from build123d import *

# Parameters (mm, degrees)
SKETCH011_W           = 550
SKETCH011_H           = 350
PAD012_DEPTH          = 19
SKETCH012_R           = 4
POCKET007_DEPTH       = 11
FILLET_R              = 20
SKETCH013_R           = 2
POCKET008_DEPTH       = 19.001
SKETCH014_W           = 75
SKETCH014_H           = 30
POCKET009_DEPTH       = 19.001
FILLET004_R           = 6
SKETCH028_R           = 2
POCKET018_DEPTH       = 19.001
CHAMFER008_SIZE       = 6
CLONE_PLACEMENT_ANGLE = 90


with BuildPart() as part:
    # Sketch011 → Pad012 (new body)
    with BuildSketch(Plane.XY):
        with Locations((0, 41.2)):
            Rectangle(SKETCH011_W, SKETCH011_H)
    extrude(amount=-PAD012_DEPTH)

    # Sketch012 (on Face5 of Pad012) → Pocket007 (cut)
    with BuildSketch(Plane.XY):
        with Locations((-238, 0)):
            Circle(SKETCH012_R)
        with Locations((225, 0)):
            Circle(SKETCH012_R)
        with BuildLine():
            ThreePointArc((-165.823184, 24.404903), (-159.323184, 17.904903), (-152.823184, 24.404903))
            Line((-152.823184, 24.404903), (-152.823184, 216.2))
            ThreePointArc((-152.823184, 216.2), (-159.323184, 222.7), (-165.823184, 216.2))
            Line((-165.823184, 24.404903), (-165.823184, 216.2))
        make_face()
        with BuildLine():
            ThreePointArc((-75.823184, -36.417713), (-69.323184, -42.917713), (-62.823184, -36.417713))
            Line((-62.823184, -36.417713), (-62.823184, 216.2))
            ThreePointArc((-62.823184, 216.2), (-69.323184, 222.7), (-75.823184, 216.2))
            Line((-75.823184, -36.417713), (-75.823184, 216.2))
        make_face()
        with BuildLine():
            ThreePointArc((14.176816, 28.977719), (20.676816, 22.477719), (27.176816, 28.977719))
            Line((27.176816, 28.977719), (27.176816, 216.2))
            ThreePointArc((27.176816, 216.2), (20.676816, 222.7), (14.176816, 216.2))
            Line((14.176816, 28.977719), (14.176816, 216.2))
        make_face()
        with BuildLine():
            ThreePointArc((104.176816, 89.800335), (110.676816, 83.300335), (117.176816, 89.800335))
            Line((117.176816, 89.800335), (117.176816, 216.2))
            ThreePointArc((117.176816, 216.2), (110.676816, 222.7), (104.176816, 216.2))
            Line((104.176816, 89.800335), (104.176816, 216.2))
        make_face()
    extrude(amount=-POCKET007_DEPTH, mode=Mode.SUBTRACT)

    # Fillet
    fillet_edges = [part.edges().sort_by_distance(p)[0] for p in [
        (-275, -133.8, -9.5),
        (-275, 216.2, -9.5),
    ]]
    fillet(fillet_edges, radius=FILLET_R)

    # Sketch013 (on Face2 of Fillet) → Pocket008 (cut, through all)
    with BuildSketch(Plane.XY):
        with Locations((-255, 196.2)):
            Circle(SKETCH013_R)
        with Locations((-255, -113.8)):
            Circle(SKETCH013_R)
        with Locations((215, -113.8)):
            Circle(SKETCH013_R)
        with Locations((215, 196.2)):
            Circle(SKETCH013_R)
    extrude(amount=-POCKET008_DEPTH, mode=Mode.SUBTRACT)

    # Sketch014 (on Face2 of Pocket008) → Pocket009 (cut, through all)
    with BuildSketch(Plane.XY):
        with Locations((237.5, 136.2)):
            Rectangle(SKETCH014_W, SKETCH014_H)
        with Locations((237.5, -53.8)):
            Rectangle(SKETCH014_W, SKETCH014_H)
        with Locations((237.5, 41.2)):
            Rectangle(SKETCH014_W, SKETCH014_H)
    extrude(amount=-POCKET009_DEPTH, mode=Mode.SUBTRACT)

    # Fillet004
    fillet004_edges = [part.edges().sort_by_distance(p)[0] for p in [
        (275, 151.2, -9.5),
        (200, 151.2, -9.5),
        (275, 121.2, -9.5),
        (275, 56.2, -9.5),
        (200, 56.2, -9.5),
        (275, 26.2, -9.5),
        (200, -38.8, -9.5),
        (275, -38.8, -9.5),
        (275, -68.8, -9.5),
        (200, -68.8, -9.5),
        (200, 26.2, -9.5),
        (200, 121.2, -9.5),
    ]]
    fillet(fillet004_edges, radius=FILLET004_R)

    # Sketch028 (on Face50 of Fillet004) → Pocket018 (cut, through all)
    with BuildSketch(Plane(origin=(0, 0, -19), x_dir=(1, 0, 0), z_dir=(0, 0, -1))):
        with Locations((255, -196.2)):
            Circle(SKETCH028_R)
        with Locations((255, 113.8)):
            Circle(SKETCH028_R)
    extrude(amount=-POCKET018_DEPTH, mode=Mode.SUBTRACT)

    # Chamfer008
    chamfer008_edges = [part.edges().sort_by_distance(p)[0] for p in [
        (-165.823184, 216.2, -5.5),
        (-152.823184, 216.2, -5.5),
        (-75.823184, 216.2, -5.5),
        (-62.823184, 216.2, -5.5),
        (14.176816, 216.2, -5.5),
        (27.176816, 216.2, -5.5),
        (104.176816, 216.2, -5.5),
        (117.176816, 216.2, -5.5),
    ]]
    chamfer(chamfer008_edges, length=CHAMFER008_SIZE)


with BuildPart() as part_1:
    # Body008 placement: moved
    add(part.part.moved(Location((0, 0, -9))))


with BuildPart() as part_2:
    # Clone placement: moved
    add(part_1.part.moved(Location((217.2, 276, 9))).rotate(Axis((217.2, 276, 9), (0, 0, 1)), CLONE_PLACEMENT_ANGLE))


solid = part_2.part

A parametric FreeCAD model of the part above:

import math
import FreeCAD as App
import Part
import Sketcher

V = App.Vector


def edges_at(feature, points):
    """Names of the edges that pass closest to the given points."""
    edges = feature.Shape.Edges
    near = lambda p: min(range(len(edges)), key=lambda i: edges[i].distToShape(Part.Vertex(*p))[0])
    return sorted({f"Edge{near(p) + 1}" for p in points})


def add_polygon(sketch, points):
    """Adds a closed chain of lines whose ends are joined by coincident constraints."""
    first, n = sketch.GeometryCount, len(points)
    for a, b in zip(points, points[1:] + points[:1]):
        sketch.addGeometry(Part.LineSegment(App.Vector(*a, 0), App.Vector(*b, 0)), False)
    for i in range(n):
        sketch.addConstraint(Sketcher.Constraint("Coincident", first + i, 2, first + (i + 1) % n, 1))

doc = App.newDocument("Part")
body = doc.addObject("PartDesign::Body", "Body")

# Sketch on XY plane
sketch1 = body.newObject("Sketcher::SketchObject", "Sketch")
sketch1.AttachmentSupport = (doc.getObject("XY_Plane"), [""])
sketch1.MapMode = "FlatFace"
add_polygon(sketch1, [(-275, 216), (-275, -134), (275, -134), (275, 216)])  # lines 0-3
sketch1.addConstraint([
    Sketcher.Constraint("Vertical", 0),
    Sketcher.Constraint("Horizontal", 1),
    Sketcher.Constraint("Vertical", 2),
    Sketcher.Constraint("Horizontal", 3),
    Sketcher.Constraint("DistanceX", 1, 1, 1, 2, 550.0),
    Sketcher.Constraint("DistanceY", 0, 2, 0, 1, 350.0),
    Sketcher.Constraint("DistanceX", 0, 2, -1, 1, 275.0),
    Sketcher.Constraint("DistanceY", 0, 2, -1, 1, 133.8),
])
pad1 = body.newObject("PartDesign::Pad", "Pad")
pad1.Profile = sketch1
pad1.Length = 19
pad1.Reversed = True

# Sketch on XY plane
sketch2 = body.newObject("Sketcher::SketchObject", "Sketch001")
sketch2.AttachmentSupport = (doc.getObject("XY_Plane"), [""])
sketch2.MapMode = "FlatFace"
sketch2.addGeometry([
    Part.Circle(V(-238, 0, 0), V(0, 0, 1), 4),  # 0
    Part.Circle(V(225, 0, 0), V(0, 0, 1), 4),  # 1
    Part.ArcOfCircle(Part.Circle(V(-159.3, 24.4, 0), V(0, 0, 1), 6.5), math.radians(180), math.radians(360)),  # 2
    Part.LineSegment(V(-152.8, 24.4, 0), V(-152.8, 216.2, 0)),  # 3
    Part.ArcOfCircle(Part.Circle(V(-159.3, 216.2, 0), V(0, 0, 1), 6.5), math.radians(0), math.radians(180)),  # 4
    Part.LineSegment(V(-165.8, 216.2, 0), V(-165.8, 24.4, 0)),  # 5
    Part.ArcOfCircle(Part.Circle(V(-69.3, -36.4, 0), V(0, 0, 1), 6.5), math.radians(180), math.radians(360)),  # 6
    Part.LineSegment(V(-62.8, -36.4, 0), V(-62.8, 216.2, 0)),  # 7
    Part.ArcOfCircle(Part.Circle(V(-69.3, 216.2, 0), V(0, 0, 1), 6.5), math.radians(0), math.radians(180)),  # 8
    Part.LineSegment(V(-75.8, 216.2, 0), V(-75.8, -36.4, 0)),  # 9
    Part.ArcOfCircle(Part.Circle(V(20.7, 29, 0), V(0, 0, 1), 6.5), math.radians(180), math.radians(360)),  # 10
    Part.LineSegment(V(27.2, 29, 0), V(27.2, 216.2, 0)),  # 11
    Part.ArcOfCircle(Part.Circle(V(20.7, 216.2, 0), V(0, 0, 1), 6.5), math.radians(0), math.radians(180)),  # 12
    Part.LineSegment(V(14.2, 216.2, 0), V(14.2, 29, 0)),  # 13
    Part.ArcOfCircle(Part.Circle(V(110.7, 89.8, 0), V(0, 0, 1), 6.5), math.radians(180), math.radians(360)),  # 14
    Part.LineSegment(V(117.2, 89.8, 0), V(117.2, 216.2, 0)),  # 15
    Part.ArcOfCircle(Part.Circle(V(110.7, 216.2, 0), V(0, 0, 1), 6.5), math.radians(0), math.radians(180)),  # 16
    Part.LineSegment(V(104.2, 216.2, 0), V(104.2, 89.8, 0)),  # 17
], False)
sketch2.addConstraint([
    Sketcher.Constraint("Tangent", 2, 2, 3, 1),
    Sketcher.Constraint("Tangent", 3, 2, 4, 1),
    Sketcher.Constraint("Tangent", 4, 2, 5, 1),
    Sketcher.Constraint("Tangent", 5, 2, 2, 1),
    Sketcher.Constraint("Tangent", 6, 2, 7, 1),
    Sketcher.Constraint("Tangent", 7, 2, 8, 1),
    Sketcher.Constraint("Tangent", 8, 2, 9, 1),
    Sketcher.Constraint("Tangent", 9, 2, 6, 1),
    Sketcher.Constraint("Tangent", 10, 2, 11, 1),
    Sketcher.Constraint("Tangent", 11, 2, 12, 1),
    Sketcher.Constraint("Tangent", 12, 2, 13, 1),
    Sketcher.Constraint("Tangent", 13, 2, 10, 1),
    Sketcher.Constraint("Tangent", 14, 2, 15, 1),
    Sketcher.Constraint("Tangent", 15, 2, 16, 1),
    Sketcher.Constraint("Tangent", 16, 2, 17, 1),
    Sketcher.Constraint("Tangent", 17, 2, 14, 1),
    Sketcher.Constraint("Vertical", 3),
    Sketcher.Constraint("Vertical", 5),
    Sketcher.Constraint("Vertical", 7),
    Sketcher.Constraint("Vertical", 9),
    Sketcher.Constraint("Vertical", 11),
    Sketcher.Constraint("Vertical", 13),
    Sketcher.Constraint("Vertical", 15),
    Sketcher.Constraint("Vertical", 17),
    Sketcher.Constraint("Equal", 0, 1),
    Sketcher.Constraint("Equal", 4, 6),
    Sketcher.Constraint("Equal", 8, 10),
    Sketcher.Constraint("Equal", 12, 14),
    Sketcher.Constraint("PointOnObject", 0, 3, -1),
    Sketcher.Constraint("PointOnObject", 1, 3, -1),
    Sketcher.Constraint("Horizontal", 4, 3, 8, 3),
    Sketcher.Constraint("Horizontal", 8, 3, 12, 3),
    Sketcher.Constraint("Horizontal", 12, 3, 16, 3),
    Sketcher.Constraint("Diameter", 0, 8.0),
    Sketcher.Constraint("Radius", 2, 6.5),
    Sketcher.Constraint("DistanceX", 0, 3, -1, 1, 238.0),
    Sketcher.Constraint("DistanceX", -1, 1, 1, 3, 225.0),
    Sketcher.Constraint("DistanceX", 2, 3, 6, 3, 90.0),
    Sketcher.Constraint("DistanceX", 6, 3, 10, 3, 90.0),
    Sketcher.Constraint("DistanceX", 10, 3, 14, 3, 90.0),
    Sketcher.Constraint("DistanceY", -1, 1, 4, 3, 216.2),
    Sketcher.Constraint("DistanceY", 11, 1, 11, 2, 187.222281),
    Sketcher.Constraint("DistanceY", 3, 1, 3, 2, 191.795097),
    Sketcher.Constraint("DistanceY", 7, 1, 7, 2, 252.617713),
    Sketcher.Constraint("DistanceY", 15, 1, 15, 2, 126.399665),
    Sketcher.Constraint("DistanceX", 2, 3, -1, 1, 159.323184),
])
pocket1 = body.newObject("PartDesign::Pocket", "Pocket")
pocket1.Profile = sketch2
pocket1.Length = 11
doc.recompute()

fillet = body.newObject("PartDesign::Fillet", "Fillet")
fillet.Base = (pocket1, edges_at(pocket1, [(-275, -133.8, -9.5), (-275, 216.2, -9.5)]))
fillet.Radius = 20

# Sketch on XY plane
sketch3 = body.newObject("Sketcher::SketchObject", "Sketch002")
sketch3.AttachmentSupport = (doc.getObject("XY_Plane"), [""])
sketch3.MapMode = "FlatFace"
sketch3.addGeometry([
    Part.Circle(V(-255, 196.2, 0), V(0, 0, 1), 2),
    Part.Circle(V(-255, -113.8, 0), V(0, 0, 1), 2),
    Part.Circle(V(215, -113.8, 0), V(0, 0, 1), 2),
    Part.Circle(V(215, 196.2, 0), V(0, 0, 1), 2),
], False)
sketch3.addConstraint([
    Sketcher.Constraint("Equal", 0, 1),
    Sketcher.Constraint("Equal", 1, 2),
    Sketcher.Constraint("Equal", 2, 3),
    Sketcher.Constraint("Horizontal", 1, 3, 2, 3),
    Sketcher.Constraint("Horizontal", 0, 3, 3, 3),
    Sketcher.Constraint("Vertical", 0, 3, 1, 3),
    Sketcher.Constraint("Vertical", 2, 3, 3, 3),
    Sketcher.Constraint("Diameter", 0, 4.0),
    Sketcher.Constraint("DistanceX", 0, 3, -1, 1, 255.0),
    Sketcher.Constraint("DistanceX", -1, 1, 2, 3, 215.0),
    Sketcher.Constraint("DistanceY", 1, 3, 0, 3, 310.0),
    Sketcher.Constraint("DistanceY", -1, 1, 0, 3, 196.2),
])
pocket2 = body.newObject("PartDesign::Pocket", "Pocket001")
pocket2.Profile = sketch3
pocket2.Type = "ThroughAll"

# Sketch on XY plane
sketch4 = body.newObject("Sketcher::SketchObject", "Sketch003")
sketch4.AttachmentSupport = (doc.getObject("XY_Plane"), [""])
sketch4.MapMode = "FlatFace"
add_polygon(sketch4, [(200, 151), (200, 121), (275, 121), (275, 151)])  # lines 0-3
add_polygon(sketch4, [(200, -39), (200, -69), (275, -69), (275, -39)])  # lines 4-7
add_polygon(sketch4, [(200, 56), (200, 26), (275, 26), (275, 56)])  # lines 8-11
sketch4.addConstraint([
    Sketcher.Constraint("Vertical", 0),
    Sketcher.Constraint("Horizontal", 1),
    Sketcher.Constraint("Vertical", 2),
    Sketcher.Constraint("Horizontal", 3),
    Sketcher.Constraint("Vertical", 4),
    Sketcher.Constraint("Horizontal", 5),
    Sketcher.Constraint("Vertical", 6),
    Sketcher.Constraint("Horizontal", 7),
    Sketcher.Constraint("Vertical", 8),
    Sketcher.Constraint("Horizontal", 9),
    Sketcher.Constraint("Vertical", 10),
    Sketcher.Constraint("Horizontal", 11),
    Sketcher.Constraint("Vertical", 3, 2, 4, 2),
    Sketcher.Constraint("Vertical", 2, 2, 5, 2),
    Sketcher.Constraint("Vertical", 7, 2, 8, 2),
    Sketcher.Constraint("Vertical", 6, 2, 9, 2),
    Sketcher.Constraint("Equal", 2, 4),
    Sketcher.Constraint("Equal", 6, 8),
    Sketcher.Constraint("DistanceX", 1, 1, 1, 2, 75.0),
    Sketcher.Constraint("DistanceY", 0, 2, 0, 1, 30.0),
    Sketcher.Constraint("DistanceX", -1, 1, 0, 2, 200.0),
    Sketcher.Constraint("DistanceY", 4, 2, 0, 2, 190.0),
    Sketcher.Constraint("DistanceY", 7, 2, 8, 2, 65.0),
    Sketcher.Constraint("DistanceY", -1, 1, 0, 2, 121.2),
])
pocket3 = body.newObject("PartDesign::Pocket", "Pocket002")
pocket3.Profile = sketch4
pocket3.Type = "ThroughAll"
doc.recompute()

fillet2 = body.newObject("PartDesign::Fillet", "Fillet001")
fillet2.Base = (pocket3, edges_at(pocket3, [
    (275, 151.2, -9.5),
    (200, 151.2, -9.5),
    (275, 121.2, -9.5),
    (275, 56.2, -9.5),
    (200, 56.2, -9.5),
    (275, 26.2, -9.5),
    (200, -38.8, -9.5),
    (275, -38.8, -9.5),
    (275, -68.8, -9.5),
    (200, -68.8, -9.5),
    (200, 26.2, -9.5),
    (200, 121.2, -9.5),
]))
fillet2.Radius = 6

# Sketch on XY plane
sketch5 = body.newObject("Sketcher::SketchObject", "Sketch004")
sketch5.AttachmentSupport = (doc.getObject("XY_Plane"), [""])
sketch5.MapMode = "FlatFace"
sketch5.AttachmentOffset = App.Placement(V(0, 0, -19), App.Rotation())
sketch5.addGeometry([
    Part.Circle(V(255, 196.2, 0), V(0, 0, 1), 2),
    Part.Circle(V(255, -113.8, 0), V(0, 0, 1), 2),
], False)
sketch5.addConstraint([
    Sketcher.Constraint("Equal", 0, 1),
    Sketcher.Constraint("Vertical", 0, 3, 1, 3),
    Sketcher.Constraint("Diameter", 0, 4.0),
    Sketcher.Constraint("DistanceX", -1, 1, 0, 3, 255.0),
    Sketcher.Constraint("DistanceY", 1, 3, 0, 3, 310.0),
    Sketcher.Constraint("DistanceY", -1, 1, 0, 3, 196.2),
])
pocket4 = body.newObject("PartDesign::Pocket", "Pocket003")
pocket4.Profile = sketch5
pocket4.Type = "ThroughAll"
pocket4.Reversed = True
doc.recompute()

chamfer = body.newObject("PartDesign::Chamfer", "Chamfer")
chamfer.Base = (pocket4, edges_at(pocket4, [
    (-165.823, 216.2, -5.5),
    (-152.823, 216.2, -5.5),
    (-75.823, 216.2, -5.5),
    (-62.823, 216.2, -5.5),
    (14.177, 216.2, -5.5),
    (27.177, 216.2, -5.5),
    (104.177, 216.2, -5.5),
    (117.177, 216.2, -5.5),
]))
chamfer.Size = 6
body2 = doc.addObject("PartDesign::Body", "Body001")
doc.recompute()

body.Placement = App.Placement(V(0, 0, -9), App.Rotation(V(0, 0, 1), 0))
boolean = body2.newObject("PartDesign::Boolean", "Boolean")
boolean.Type = "Fuse"
boolean.addObjects([body])
body3 = doc.addObject("PartDesign::Body", "Body002")
doc.recompute()

body2.Placement = App.Placement(V(217.2, 276, 9), App.Rotation(V(0, 0, 1), 90))
boolean2 = body3.newObject("PartDesign::Boolean", "Boolean001")
boolean2.Type = "Fuse"
boolean2.addObjects([body2])

doc.recompute()
